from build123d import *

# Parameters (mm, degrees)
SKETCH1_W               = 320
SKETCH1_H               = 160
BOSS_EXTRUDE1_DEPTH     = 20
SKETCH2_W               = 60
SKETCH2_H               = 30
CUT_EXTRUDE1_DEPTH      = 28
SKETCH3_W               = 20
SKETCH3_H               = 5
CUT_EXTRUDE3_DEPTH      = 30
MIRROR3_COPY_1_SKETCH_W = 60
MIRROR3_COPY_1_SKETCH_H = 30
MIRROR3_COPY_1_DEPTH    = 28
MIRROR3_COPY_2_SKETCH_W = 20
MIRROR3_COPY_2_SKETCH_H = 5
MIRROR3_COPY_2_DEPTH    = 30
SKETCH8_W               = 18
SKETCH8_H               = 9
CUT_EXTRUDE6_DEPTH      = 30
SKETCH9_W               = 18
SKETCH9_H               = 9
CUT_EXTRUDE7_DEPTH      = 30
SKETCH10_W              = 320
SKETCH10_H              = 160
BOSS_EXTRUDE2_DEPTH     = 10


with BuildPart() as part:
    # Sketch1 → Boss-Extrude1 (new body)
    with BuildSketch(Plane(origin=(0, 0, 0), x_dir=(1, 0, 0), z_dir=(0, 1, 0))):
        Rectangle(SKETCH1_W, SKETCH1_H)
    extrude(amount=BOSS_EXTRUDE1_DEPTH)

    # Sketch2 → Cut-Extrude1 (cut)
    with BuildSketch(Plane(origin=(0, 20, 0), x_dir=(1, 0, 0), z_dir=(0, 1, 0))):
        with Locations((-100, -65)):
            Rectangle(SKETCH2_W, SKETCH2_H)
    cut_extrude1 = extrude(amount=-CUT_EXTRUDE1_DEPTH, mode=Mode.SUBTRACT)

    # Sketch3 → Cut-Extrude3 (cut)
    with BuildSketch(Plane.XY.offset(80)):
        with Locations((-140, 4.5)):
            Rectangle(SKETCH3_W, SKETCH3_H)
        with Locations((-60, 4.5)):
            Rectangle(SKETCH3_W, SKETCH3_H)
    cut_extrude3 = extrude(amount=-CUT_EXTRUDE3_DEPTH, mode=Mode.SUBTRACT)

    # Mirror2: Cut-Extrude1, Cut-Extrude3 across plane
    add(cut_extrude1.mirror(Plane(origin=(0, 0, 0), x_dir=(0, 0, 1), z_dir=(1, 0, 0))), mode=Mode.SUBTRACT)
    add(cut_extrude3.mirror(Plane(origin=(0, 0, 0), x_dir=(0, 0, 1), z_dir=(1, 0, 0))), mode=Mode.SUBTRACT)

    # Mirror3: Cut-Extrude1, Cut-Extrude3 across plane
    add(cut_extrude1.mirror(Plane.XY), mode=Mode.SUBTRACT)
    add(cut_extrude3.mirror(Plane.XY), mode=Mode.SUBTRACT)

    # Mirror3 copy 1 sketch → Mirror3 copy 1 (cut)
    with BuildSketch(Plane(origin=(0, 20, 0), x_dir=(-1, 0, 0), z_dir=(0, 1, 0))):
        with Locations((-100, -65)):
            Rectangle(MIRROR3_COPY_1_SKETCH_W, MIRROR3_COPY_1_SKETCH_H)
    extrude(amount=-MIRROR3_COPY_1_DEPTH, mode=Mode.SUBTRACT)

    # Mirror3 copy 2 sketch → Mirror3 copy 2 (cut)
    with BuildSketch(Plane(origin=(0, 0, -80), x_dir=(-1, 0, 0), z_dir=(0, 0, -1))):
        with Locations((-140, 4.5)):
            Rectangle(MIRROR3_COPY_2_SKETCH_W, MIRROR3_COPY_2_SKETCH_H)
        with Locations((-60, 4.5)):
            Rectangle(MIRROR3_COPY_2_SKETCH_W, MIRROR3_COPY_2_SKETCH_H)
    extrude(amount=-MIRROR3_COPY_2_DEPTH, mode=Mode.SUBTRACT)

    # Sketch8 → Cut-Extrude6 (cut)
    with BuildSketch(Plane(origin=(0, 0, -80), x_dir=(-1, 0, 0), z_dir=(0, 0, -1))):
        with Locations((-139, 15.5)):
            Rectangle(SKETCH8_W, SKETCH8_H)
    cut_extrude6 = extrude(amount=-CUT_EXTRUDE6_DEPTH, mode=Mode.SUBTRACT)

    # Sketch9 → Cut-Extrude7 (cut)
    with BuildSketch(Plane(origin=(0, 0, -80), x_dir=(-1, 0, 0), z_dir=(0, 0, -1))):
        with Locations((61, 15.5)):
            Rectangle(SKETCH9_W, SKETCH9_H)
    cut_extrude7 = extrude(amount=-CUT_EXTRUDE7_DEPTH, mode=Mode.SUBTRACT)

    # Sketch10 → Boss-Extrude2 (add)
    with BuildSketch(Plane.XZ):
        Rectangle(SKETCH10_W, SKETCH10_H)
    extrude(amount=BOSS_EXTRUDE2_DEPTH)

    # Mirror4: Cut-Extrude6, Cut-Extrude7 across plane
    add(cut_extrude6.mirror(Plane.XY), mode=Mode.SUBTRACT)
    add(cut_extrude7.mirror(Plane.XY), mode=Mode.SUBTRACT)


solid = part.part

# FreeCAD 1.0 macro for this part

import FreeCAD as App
import Part
import Sketcher
from FreeCAD import Vector

doc = App.newDocument("Part")
body = doc.addObject("PartDesign::Body", "Body")

sketch1 = body.newObject("Sketcher::SketchObject", "Sketch")
sketch1.AttachmentSupport = (doc.getObject("XZ_Plane"), [""])
sketch1.MapMode = "FlatFace"
sketch1.addGeometry([
    Part.LineSegment(Vector(-160, -80, 0), Vector(-160, 80, 0)),
    Part.LineSegment(Vector(-160, 80, 0), Vector(160, 80, 0)),
    Part.LineSegment(Vector(160, 80, 0), Vector(160, -80, 0)),
    Part.LineSegment(Vector(160, -80, 0), Vector(-160, -80, 0)),
], False)
sketch1.addConstraint([
    Sketcher.Constraint("Coincident", 0, 2, 1, 1),
    Sketcher.Constraint("Coincident", 1, 2, 2, 1),
    Sketcher.Constraint("Coincident", 2, 2, 3, 1),
    Sketcher.Constraint("Coincident", 3, 2, 0, 1),
    Sketcher.Constraint("Vertical", 0),
    Sketcher.Constraint("Horizontal", 1),
    Sketcher.Constraint("Vertical", 2),
    Sketcher.Constraint("Horizontal", 3),
    Sketcher.Constraint("Symmetric", 0, 2, 2, 2, -1, 1),
    Sketcher.Constraint("DistanceX", 1, 1, 1, 2, 320.0),
    Sketcher.Constraint("DistanceY", 0, 1, 0, 2, 160.0),
])
pad1 = body.newObject("PartDesign::Pad", "Pad")
pad1.Profile = sketch1
pad1.Length = 20
pad1.Reversed = True

sketch2 = body.newObject("Sketcher::SketchObject", "Sketch001")
sketch2.AttachmentSupport = (doc.getObject("XZ_Plane"), [""])
sketch2.MapMode = "FlatFace"
sketch2.AttachmentOffset = App.Placement(Vector(0, 0, -20), App.Rotation())
sketch2.addGeometry([
    Part.LineSegment(Vector(-130, 50, 0), Vector(-130, 80, 0)),
    Part.LineSegment(Vector(-130, 80, 0), Vector(-70, 80, 0)),
    Part.LineSegment(Vector(-70, 80, 0), Vector(-70, 50, 0)),
    Part.LineSegment(Vector(-70, 50, 0), Vector(-130, 50, 0)),
], False)
sketch2.addConstraint([
    Sketcher.Constraint("Coincident", 0, 2, 1, 1),
    Sketcher.Constraint("Coincident", 1, 2, 2, 1),
    Sketcher.Constraint("Coincident", 2, 2, 3, 1),
    Sketcher.Constraint("Coincident", 3, 2, 0, 1),
    Sketcher.Constraint("Vertical", 0),
    Sketcher.Constraint("Horizontal", 1),
    Sketcher.Constraint("Vertical", 2),
    Sketcher.Constraint("Horizontal", 3),
    Sketcher.Constraint("DistanceX", 1, 1, 1, 2, 60.0),
    Sketcher.Constraint("DistanceY", 0, 1, 0, 2, 30.0),
    Sketcher.Constraint("DistanceX", 0, 2, -1, 1, 130.0),
    Sketcher.Constraint("DistanceY", -1, 1, 0, 2, 80.0),
])
pocket1 = body.newObject("PartDesign::Pocket", "Pocket")
pocket1.Profile = sketch2
pocket1.Length = 28
pocket1.Reversed = True

sketch3 = body.newObject("Sketcher::SketchObject", "Sketch002")
sketch3.AttachmentSupport = (doc.getObject("XY_Plane"), [""])
sketch3.MapMode = "FlatFace"
sketch3.AttachmentOffset = App.Placement(Vector(0, 0, 80), App.Rotation())
sketch3.addGeometry([
    Part.LineSegment(Vector(-150, 7, 0), Vector(-150, 2, 0)),
    Part.LineSegment(Vector(-150, 2, 0), Vector(-130, 2, 0)),
    Part.LineSegment(Vector(-130, 2, 0), Vector(-130, 7, 0)),
    Part.LineSegment(Vector(-130, 7, 0), Vector(-150, 7, 0)),
    Part.LineSegment(Vector(-70, 7, 0), Vector(-70, 2, 0)),
    Part.LineSegment(Vector(-70, 2, 0), Vector(-50, 2, 0)),
    Part.LineSegment(Vector(-50, 2, 0), Vector(-50, 7, 0)),
    Part.LineSegment(Vector(-50, 7, 0), Vector(-70, 7, 0)),
], False)
sketch3.addConstraint([
    Sketcher.Constraint("Coincident", 0, 2, 1, 1),
    Sketcher.Constraint("Coincident", 1, 2, 2, 1),
    Sketcher.Constraint("Coincident", 2, 2, 3, 1),
    Sketcher.Constraint("Coincident", 3, 2, 0, 1),
    Sketcher.Constraint("Coincident", 4, 2, 5, 1),
    Sketcher.Constraint("Coincident", 5, 2, 6, 1),
    Sketcher.Constraint("Coincident", 6, 2, 7, 1),
    Sketcher.Constraint("Coincident", 7, 2, 4, 1),
    Sketcher.Constraint("Vertical", 0),
    Sketcher.Constraint("Horizontal", 1),
    Sketcher.Constraint("Vertical", 2),
    Sketcher.Constraint("Horizontal", 3),
    Sketcher.Constraint("Vertical", 4),
    Sketcher.Constraint("Horizontal", 5),
    Sketcher.Constraint("Vertical", 6),
    Sketcher.Constraint("Horizontal", 7),
    Sketcher.Constraint("Horizontal", 1, 2, 4, 2),
    Sketcher.Constraint("Horizontal", 3, 2, 6, 2),
    Sketcher.Constraint("Equal", 3, 5),
    Sketcher.Constraint("DistanceX", 1, 1, 1, 2, 20.0),
    Sketcher.Constraint("DistanceY", 0, 2, 0, 1, 5.0),
    Sketcher.Constraint("DistanceX", 0, 2, -1, 1, 150.0),
    Sketcher.Constraint("DistanceY", -1, 1, 0, 2, 2.0),
    Sketcher.Constraint("DistanceX", 4, 2, -1, 1, 70.0),
])
pocket2 = body.newObject("PartDesign::Pocket", "Pocket001")
pocket2.Profile = sketch3
pocket2.Length = 30
doc.recompute()

mirrored = body.newObject("PartDesign::Mirrored", "Mirrored")
mirrored.Originals = [pocket1, pocket2]
mirrored.MirrorPlane = (doc.getObject("YZ_Plane"), [""])
body.Tip = mirrored
doc.recompute()

mirrored2 = body.newObject("PartDesign::Mirrored", "Mirrored001")
mirrored2.Originals = [pocket1, pocket2]
mirrored2.MirrorPlane = (doc.getObject("XY_Plane"), [""])
body.Tip = mirrored2

sketch4 = body.newObject("Sketcher::SketchObject", "Sketch003")
sketch4.AttachmentSupport = (doc.getObject("XZ_Plane"), [""])
sketch4.MapMode = "FlatFace"
sketch4.AttachmentOffset = App.Placement(Vector(0, 0, -20), App.Rotation())
sketch4.addGeometry([
    Part.LineSegment(Vector(130, -50, 0), Vector(130, -80, 0)),
    Part.LineSegment(Vector(130, -80, 0), Vector(70, -80, 0)),
    Part.LineSegment(Vector(70, -80, 0), Vector(70, -50, 0)),
    Part.LineSegment(Vector(70, -50, 0), Vector(130, -50, 0)),
], False)
sketch4.addConstraint([
    Sketcher.Constraint("Coincident", 0, 2, 1, 1),
    Sketcher.Constraint("Coincident", 1, 2, 2, 1),
    Sketcher.Constraint("Coincident", 2, 2, 3, 1),
    Sketcher.Constraint("Coincident", 3, 2, 0, 1),
    Sketcher.Constraint("Vertical", 0),
    Sketcher.Constraint("Horizontal", 1),
    Sketcher.Constraint("Vertical", 2),
    Sketcher.Constraint("Horizontal", 3),
    Sketcher.Constraint("DistanceX", 1, 2, 1, 1, 60.0),
    Sketcher.Constraint("DistanceY", 0, 2, 0, 1, 30.0),
    Sketcher.Constraint("DistanceX", -1, 1, 0, 2, 130.0),
    Sketcher.Constraint("DistanceY", 0, 2, -1, 1, 80.0),
])
pocket3 = body.newObject("PartDesign::Pocket", "Pocket002")
pocket3.Profile = sketch4
pocket3.Length = 28
pocket3.Reversed = True

sketch5 = body.newObject("Sketcher::SketchObject", "Sketch004")
sketch5.AttachmentSupport = (doc.getObject("XY_Plane"), [""])
sketch5.MapMode = "FlatFace"
sketch5.AttachmentOffset = App.Placement(Vector(0, 0, -80), App.Rotation())
sketch5.addGeometry([
    Part.LineSegment(Vector(150, 7, 0), Vector(150, 2, 0)),
    Part.LineSegment(Vector(150, 2, 0), Vector(130, 2, 0)),
    Part.LineSegment(Vector(130, 2, 0), Vector(130, 7, 0)),
    Part.LineSegment(Vector(130, 7, 0), Vector(150, 7, 0)),
    Part.LineSegment(Vector(70, 7, 0), Vector(70, 2, 0)),
    Part.LineSegment(Vector(70, 2, 0), Vector(50, 2, 0)),
    Part.LineSegment(Vector(50, 2, 0), Vector(50, 7, 0)),
    Part.LineSegment(Vector(50, 7, 0), Vector(70, 7, 0)),
], False)
sketch5.addConstraint([
    Sketcher.Constraint("Coincident", 0, 2, 1, 1),
    Sketcher.Constraint("Coincident", 1, 2, 2, 1),
    Sketcher.Constraint("Coincident", 2, 2, 3, 1),
    Sketcher.Constraint("Coincident", 3, 2, 0, 1),
    Sketcher.Constraint("Coincident", 4, 2, 5, 1),
    Sketcher.Constraint("Coincident", 5, 2, 6, 1),
    Sketcher.Constraint("Coincident", 6, 2, 7, 1),
    Sketcher.Constraint("Coincident", 7, 2, 4, 1),
    Sketcher.Constraint("Vertical", 0),
    Sketcher.Constraint("Horizontal", 1),
    Sketcher.Constraint("Vertical", 2),
    Sketcher.Constraint("Horizontal", 3),
    Sketcher.Constraint("Vertical", 4),
    Sketcher.Constraint("Horizontal", 5),
    Sketcher.Constraint("Vertical", 6),
    Sketcher.Constraint("Horizontal", 7),
    Sketcher.Constraint("Horizontal", 1, 2, 4, 2),
    Sketcher.Constraint("Horizontal", 3, 2, 6, 2),
    Sketcher.Constraint("Equal", 3, 5),
    Sketcher.Constraint("DistanceX", 1, 2, 1, 1, 20.0),
    Sketcher.Constraint("DistanceY", 0, 2, 0, 1, 5.0),
    Sketcher.Constraint("DistanceX", -1, 1, 0, 2, 150.0),
    Sketcher.Constraint("DistanceY", -1, 1, 0, 2, 2.0),
    Sketcher.Constraint("DistanceX", -1, 1, 4, 2, 70.0),
])
pocket4 = body.newObject("PartDesign::Pocket", "Pocket003")
pocket4.Profile = sketch5
pocket4.Length = 30
pocket4.Reversed = True

sketch6 = body.newObject("Sketcher::SketchObject", "Sketch005")
sketch6.AttachmentSupport = (doc.getObject("XY_Plane"), [""])
sketch6.MapMode = "FlatFace"
sketch6.AttachmentOffset = App.Placement(Vector(0, 0, -80), App.Rotation())
sketch6.addGeometry([
    Part.LineSegment(Vector(148, 20, 0), Vector(148, 11, 0)),
    Part.LineSegment(Vector(148, 11, 0), Vector(130, 11, 0)),
    Part.LineSegment(Vector(130, 11, 0), Vector(130, 20, 0)),
    Part.LineSegment(Vector(130, 20, 0), Vector(148, 20, 0)),
], False)
sketch6.addConstraint([
    Sketcher.Constraint("Coincident", 0, 2, 1, 1),
    Sketcher.Constraint("Coincident", 1, 2, 2, 1),
    Sketcher.Constraint("Coincident", 2, 2, 3, 1),
    Sketcher.Constraint("Coincident", 3, 2, 0, 1),
    Sketcher.Constraint("Vertical", 0),
    Sketcher.Constraint("Horizontal", 1),
    Sketcher.Constraint("Vertical", 2),
    Sketcher.Constraint("Horizontal", 3),
    Sketcher.Constraint("DistanceX", 1, 2, 1, 1, 18.0),
    Sketcher.Constraint("DistanceY", 0, 2, 0, 1, 9.0),
    Sketcher.Constraint("DistanceX", -1, 1, 0, 2, 148.0),
    Sketcher.Constraint("DistanceY", -1, 1, 0, 2, 11.0),
])
pocket5 = body.newObject("PartDesign::Pocket", "Pocket004")
pocket5.Profile = sketch6
pocket5.Length = 30
pocket5.Reversed = True

sketch7 = body.newObject("Sketcher::SketchObject", "Sketch006")
sketch7.AttachmentSupport = (doc.getObject("XY_Plane"), [""])
sketch7.MapMode = "FlatFace"
sketch7.AttachmentOffset = App.Placement(Vector(0, 0, -80), App.Rotation())
sketch7.addGeometry([
    Part.LineSegment(Vector(-52, 20, 0), Vector(-52, 11, 0)),
    Part.LineSegment(Vector(-52, 11, 0), Vector(-70, 11, 0)),
    Part.LineSegment(Vector(-70, 11, 0), Vector(-70, 20, 0)),
    Part.LineSegment(Vector(-70, 20, 0), Vector(-52, 20, 0)),
], False)
sketch7.addConstraint([
    Sketcher.Constraint("Coincident", 0, 2, 1, 1),
    Sketcher.Constraint("Coincident", 1, 2, 2, 1),
    Sketcher.Constraint("Coincident", 2, 2, 3, 1),
    Sketcher.Constraint("Coincident", 3, 2, 0, 1),
    Sketcher.Constraint("Vertical", 0),
    Sketcher.Constraint("Horizontal", 1),
    Sketcher.Constraint("Vertical", 2),
    Sketcher.Constraint("Horizontal", 3),
    Sketcher.Constraint("DistanceX", 1, 2, 1, 1, 18.0),
    Sketcher.Constraint("DistanceY", 0, 2, 0, 1, 9.0),
    Sketcher.Constraint("DistanceX", 0, 2, -1, 1, 52.0),
    Sketcher.Constraint("DistanceY", -1, 1, 0, 2, 11.0),
])
pocket6 = body.newObject("PartDesign::Pocket", "Pocket005")
pocket6.Profile = sketch7
pocket6.Length = 30
pocket6.Reversed = True

sketch8 = body.newObject("Sketcher::SketchObject", "Sketch007")
sketch8.AttachmentSupport = (doc.getObject("XZ_Plane"), [""])
sketch8.MapMode = "FlatFace"
sketch8.addGeometry([
    Part.LineSegment(Vector(-160, 80, 0), Vector(-160, -80, 0)),
    Part.LineSegment(Vector(-160, -80, 0), Vector(160, -80, 0)),
    Part.LineSegment(Vector(160, -80, 0), Vector(160, 80, 0)),
    Part.LineSegment(Vector(160, 80, 0), Vector(-160, 80, 0)),
], False)
sketch8.addConstraint([
    Sketcher.Constraint("Coincident", 0, 2, 1, 1),
    Sketcher.Constraint("Coincident", 1, 2, 2, 1),
    Sketcher.Constraint("Coincident", 2, 2, 3, 1),
    Sketcher.Constraint("Coincident", 3, 2, 0, 1),
    Sketcher.Constraint("Vertical", 0),
    Sketcher.Constraint("Horizontal", 1),
    Sketcher.Constraint("Vertical", 2),
    Sketcher.Constraint("Horizontal", 3),
    Sketcher.Constraint("Symmetric", 0, 2, 2, 2, -1, 1),
    Sketcher.Constraint("DistanceX", 1, 1, 1, 2, 320.0),
    Sketcher.Constraint("DistanceY", 0, 2, 0, 1, 160.0),
])
pad2 = body.newObject("PartDesign::Pad", "Pad001")
pad2.Profile = sketch8
pad2.Length = 10
doc.recompute()

mirrored3 = body.newObject("PartDesign::Mirrored", "Mirrored002")
mirrored3.Originals = [pocket5, pocket6]
mirrored3.MirrorPlane = (doc.getObject("XY_Plane"), [""])
body.Tip = mirrored3

doc.recompute()
